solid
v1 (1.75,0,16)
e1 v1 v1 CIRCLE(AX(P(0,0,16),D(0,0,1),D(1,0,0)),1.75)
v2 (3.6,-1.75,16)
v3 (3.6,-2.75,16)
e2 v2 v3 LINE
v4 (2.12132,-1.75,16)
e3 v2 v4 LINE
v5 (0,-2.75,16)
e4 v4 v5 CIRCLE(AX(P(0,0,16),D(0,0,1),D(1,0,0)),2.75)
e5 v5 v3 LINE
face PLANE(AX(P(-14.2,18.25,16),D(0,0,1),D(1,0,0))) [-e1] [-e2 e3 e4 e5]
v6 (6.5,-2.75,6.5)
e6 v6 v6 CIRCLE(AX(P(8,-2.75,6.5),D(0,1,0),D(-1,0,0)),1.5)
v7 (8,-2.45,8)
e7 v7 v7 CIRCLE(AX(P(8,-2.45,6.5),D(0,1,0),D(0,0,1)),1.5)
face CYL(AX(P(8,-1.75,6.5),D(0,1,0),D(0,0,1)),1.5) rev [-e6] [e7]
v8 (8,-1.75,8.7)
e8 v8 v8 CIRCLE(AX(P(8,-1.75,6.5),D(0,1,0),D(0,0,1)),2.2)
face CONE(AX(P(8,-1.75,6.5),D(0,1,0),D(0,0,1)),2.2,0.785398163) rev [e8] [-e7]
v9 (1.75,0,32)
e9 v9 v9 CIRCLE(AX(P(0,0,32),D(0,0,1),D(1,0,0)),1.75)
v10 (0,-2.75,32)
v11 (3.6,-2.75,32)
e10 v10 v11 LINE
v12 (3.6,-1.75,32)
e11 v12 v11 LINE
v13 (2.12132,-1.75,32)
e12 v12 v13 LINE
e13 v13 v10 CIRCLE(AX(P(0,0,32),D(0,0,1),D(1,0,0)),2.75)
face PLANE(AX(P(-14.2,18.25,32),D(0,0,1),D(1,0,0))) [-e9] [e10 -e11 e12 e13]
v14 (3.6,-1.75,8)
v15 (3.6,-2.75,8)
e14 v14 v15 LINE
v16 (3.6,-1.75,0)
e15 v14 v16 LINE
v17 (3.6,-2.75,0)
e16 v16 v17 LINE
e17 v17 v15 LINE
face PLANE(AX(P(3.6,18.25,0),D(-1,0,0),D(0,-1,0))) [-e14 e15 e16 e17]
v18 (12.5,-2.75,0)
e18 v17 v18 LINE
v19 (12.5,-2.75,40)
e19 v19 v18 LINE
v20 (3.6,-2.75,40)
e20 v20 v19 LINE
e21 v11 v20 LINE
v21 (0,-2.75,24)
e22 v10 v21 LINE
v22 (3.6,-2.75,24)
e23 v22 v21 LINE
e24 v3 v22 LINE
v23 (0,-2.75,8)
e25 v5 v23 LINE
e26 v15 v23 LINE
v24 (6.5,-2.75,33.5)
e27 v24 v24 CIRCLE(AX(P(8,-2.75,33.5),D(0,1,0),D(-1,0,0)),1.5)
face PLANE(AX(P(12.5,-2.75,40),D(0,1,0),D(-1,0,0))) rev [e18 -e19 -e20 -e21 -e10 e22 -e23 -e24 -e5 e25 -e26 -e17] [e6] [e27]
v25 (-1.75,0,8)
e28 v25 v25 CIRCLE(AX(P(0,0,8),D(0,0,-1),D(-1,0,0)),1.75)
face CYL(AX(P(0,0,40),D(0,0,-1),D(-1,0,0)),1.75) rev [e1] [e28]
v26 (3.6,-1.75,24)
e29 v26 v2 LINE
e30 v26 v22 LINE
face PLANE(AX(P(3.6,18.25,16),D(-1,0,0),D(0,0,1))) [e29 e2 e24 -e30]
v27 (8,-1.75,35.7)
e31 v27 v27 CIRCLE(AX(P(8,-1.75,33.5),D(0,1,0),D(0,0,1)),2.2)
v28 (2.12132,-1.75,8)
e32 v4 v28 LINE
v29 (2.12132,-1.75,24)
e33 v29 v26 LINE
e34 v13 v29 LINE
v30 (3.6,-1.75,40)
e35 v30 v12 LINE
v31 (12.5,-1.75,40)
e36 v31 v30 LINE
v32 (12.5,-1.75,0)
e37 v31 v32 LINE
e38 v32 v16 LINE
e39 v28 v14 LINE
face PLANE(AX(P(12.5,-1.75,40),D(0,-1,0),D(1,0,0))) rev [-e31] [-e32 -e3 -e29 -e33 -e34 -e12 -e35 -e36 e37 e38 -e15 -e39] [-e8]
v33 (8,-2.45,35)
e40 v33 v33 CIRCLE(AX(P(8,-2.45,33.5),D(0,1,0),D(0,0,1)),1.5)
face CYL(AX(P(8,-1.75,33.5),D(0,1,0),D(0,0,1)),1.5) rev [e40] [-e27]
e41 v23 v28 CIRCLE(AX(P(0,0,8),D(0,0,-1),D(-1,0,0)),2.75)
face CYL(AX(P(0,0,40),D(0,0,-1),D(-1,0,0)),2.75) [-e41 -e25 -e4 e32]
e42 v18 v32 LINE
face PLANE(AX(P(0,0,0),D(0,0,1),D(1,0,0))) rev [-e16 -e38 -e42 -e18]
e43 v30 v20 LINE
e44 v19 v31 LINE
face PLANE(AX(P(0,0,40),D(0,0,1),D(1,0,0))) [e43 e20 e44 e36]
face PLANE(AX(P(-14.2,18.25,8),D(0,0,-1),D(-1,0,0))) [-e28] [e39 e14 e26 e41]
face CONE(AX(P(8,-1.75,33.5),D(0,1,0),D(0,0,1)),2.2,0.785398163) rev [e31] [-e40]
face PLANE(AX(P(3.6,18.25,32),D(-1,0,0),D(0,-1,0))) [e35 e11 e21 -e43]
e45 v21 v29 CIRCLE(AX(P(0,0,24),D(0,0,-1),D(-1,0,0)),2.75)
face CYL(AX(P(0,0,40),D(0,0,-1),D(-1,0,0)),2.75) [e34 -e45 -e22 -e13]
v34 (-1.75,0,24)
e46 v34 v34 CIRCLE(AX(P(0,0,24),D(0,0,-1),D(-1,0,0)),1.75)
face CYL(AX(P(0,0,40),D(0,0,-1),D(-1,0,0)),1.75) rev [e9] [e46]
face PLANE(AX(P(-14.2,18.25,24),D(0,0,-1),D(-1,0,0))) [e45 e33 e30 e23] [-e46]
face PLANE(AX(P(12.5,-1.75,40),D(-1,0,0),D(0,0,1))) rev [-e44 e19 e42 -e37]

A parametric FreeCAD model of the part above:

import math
import FreeCAD as App
import Part
import Sketcher

doc = App.newDocument("Part")
body = doc.addObject("PartDesign::Body", "Body")

sketch1 = doc.addObject("Sketcher::SketchObject", "Sketch")
body.addObject(sketch1)
sketch1.AttachmentSupport = (doc.XY_Plane, [""])
sketch1.MapMode = "FlatFace"
sketch1.addGeometry(Part.LineSegment(App.Vector(12.5, -1.8, 0), App.Vector(2.1, -1.8, 0)), False)
sketch1.addGeometry(Part.ArcOfCircle(Part.Circle(App.Vector(0, 0, 0), App.Vector(0, 0, 1), 2.8), math.radians(-40), math.radians(270)), False)
sketch1.addGeometry(Part.LineSegment(App.Vector(0, -2.8, 0), App.Vector(12.5, -2.8, 0)), False)
sketch1.addGeometry(Part.LineSegment(App.Vector(12.5, -2.8, 0), App.Vector(12.5, -1.8, 0)), False)
sketch1.addGeometry(Part.Circle(App.Vector(0, 0, 0), App.Vector(0, 0, 1), 1.8), False)
sketch1.addConstraint(Sketcher.Constraint("Coincident", 0, 2, 1, 1))
sketch1.addConstraint(Sketcher.Constraint("Tangent", 1, 2, 2, 1))
sketch1.addConstraint(Sketcher.Constraint("Coincident", 2, 2, 3, 1))
sketch1.addConstraint(Sketcher.Constraint("Coincident", 3, 2, 0, 1))
sketch1.addConstraint(Sketcher.Constraint("Horizontal", 0))
sketch1.addConstraint(Sketcher.Constraint("Horizontal", 2))
sketch1.addConstraint(Sketcher.Constraint("Vertical", 3))
sketch1.addConstraint(Sketcher.Constraint("Coincident", 1, 3, -1, 1))
sketch1.addConstraint(Sketcher.Constraint("Coincident", 4, 3, -1, 1))
sketch1.addConstraint(Sketcher.Constraint("Diameter", 4, 3.5))
sketch1.addConstraint(Sketcher.Constraint("DistanceY", 3, 1, 3, 2, 1.0))
sketch1.addConstraint(Sketcher.Constraint("Radius", 1, 2.75))
sketch1.addConstraint(Sketcher.Constraint("DistanceX", 2, 1, 2, 2, 12.5))
pad1 = doc.addObject("PartDesign::Pad", "Pad")
body.addObject(pad1)
pad1.Profile = sketch1
pad1.Length = 40

sketch2 = doc.addObject("Sketcher::SketchObject", "Sketch001")
body.addObject(sketch2)
sketch2.AttachmentSupport = (doc.XZ_Plane, [""])
sketch2.MapMode = "FlatFace"
sketch2.AttachmentOffset = App.Placement(App.Vector(0, 0, 1.75), App.Rotation())
sketch2.addGeometry(Part.LineSegment(App.Vector(-14, 16, 0), App.Vector(-14, 24, 0)), False)
sketch2.addGeometry(Part.LineSegment(App.Vector(-14, 24, 0), App.Vector(4, 24, 0)), False)
sketch2.addGeometry(Part.LineSegment(App.Vector(4, 24, 0), App.Vector(4, 16, 0)), False)
sketch2.addGeometry(Part.LineSegment(App.Vector(4, 16, 0), App.Vector(-14, 16, 0)), False)
sketch2.addGeometry(Part.LineSegment(App.Vector(-14, 32, 0), App.Vector(-14, 40, 0)), False)
sketch2.addGeometry(Part.LineSegment(App.Vector(-14, 40, 0), App.Vector(4, 40, 0)), False)
sketch2.addGeometry(Part.LineSegment(App.Vector(4, 40, 0), App.Vector(4, 32, 0)), False)
sketch2.addGeometry(Part.LineSegment(App.Vector(4, 32, 0), App.Vector(-14, 32, 0)), False)
sketch2.addGeometry(Part.LineSegment(App.Vector(-14, 0, 0), App.Vector(-14, 8, 0)), False)
sketch2.addGeometry(Part.LineSegment(App.Vector(-14, 8, 0), App.Vector(4, 8, 0)), False)
sketch2.addGeometry(Part.LineSegment(App.Vector(4, 8, 0), App.Vector(4, 0, 0)), False)
sketch2.addGeometry(Part.LineSegment(App.Vector(4, 0, 0), App.Vector(-14, 0, 0)), False)
sketch2.addConstraint(Sketcher.Constraint("Coincident", 0, 2, 1, 1))
sketch2.addConstraint(Sketcher.Constraint("Coincident", 1, 2, 2, 1))
sketch2.addConstraint(Sketcher.Constraint("Coincident", 2, 2, 3, 1))
sketch2.addConstraint(Sketcher.Constraint("Coincident", 3, 2, 0, 1))
sketch2.addConstraint(Sketcher.Constraint("Coincident", 4, 2, 5, 1))
sketch2.addConstraint(Sketcher.Constraint("Coincident", 5, 2, 6, 1))
sketch2.addConstraint(Sketcher.Constraint("Coincident", 6, 2, 7, 1))
sketch2.addConstraint(Sketcher.Constraint("Coincident", 7, 2, 4, 1))
sketch2.addConstraint(Sketcher.Constraint("Coincident", 8, 2, 9, 1))
sketch2.addConstraint(Sketcher.Constraint("Coincident", 9, 2, 10, 1))
sketch2.addConstraint(Sketcher.Constraint("Coincident", 10, 2, 11, 1))
sketch2.addConstraint(Sketcher.Constraint("Coincident", 11, 2, 8, 1))
sketch2.addConstraint(Sketcher.Constraint("Vertical", 0))
sketch2.addConstraint(Sketcher.Constraint("Horizontal", 1))
sketch2.addConstraint(Sketcher.Constraint("Vertical", 2))
sketch2.addConstraint(Sketcher.Constraint("Horizontal", 3))
sketch2.addConstraint(Sketcher.Constraint("Vertical", 4))
sketch2.addConstraint(Sketcher.Constraint("Horizontal", 5))
sketch2.addConstraint(Sketcher.Constraint("Vertical", 6))
sketch2.addConstraint(Sketcher.Constraint("Horizontal", 7))
sketch2.addConstraint(Sketcher.Constraint("Vertical", 8))
sketch2.addConstraint(Sketcher.Constraint("Horizontal", 9))
sketch2.addConstraint(Sketcher.Constraint("Vertical", 10))
sketch2.addConstraint(Sketcher.Constraint("Horizontal", 11))
sketch2.addConstraint(Sketcher.Constraint("PointOnObject", 10, 2, -1))
sketch2.addConstraint(Sketcher.Constraint("Vertical", 3, 2, 4, 2))
sketch2.addConstraint(Sketcher.Constraint("Vertical", 2, 2, 5, 2))
sketch2.addConstraint(Sketcher.Constraint("Vertical", 7, 2, 8, 2))
sketch2.addConstraint(Sketcher.Constraint("Vertical", 6, 2, 9, 2))
sketch2.addConstraint(Sketcher.Constraint("Equal", 2, 4))
sketch2.addConstraint(Sketcher.Constraint("Equal", 6, 8))
sketch2.addConstraint(Sketcher.Constraint("DistanceY", 0, 1, 0, 2, 8.0))
sketch2.addConstraint(Sketcher.Constraint("DistanceX", 1, 1, 1, 2, 17.8))
sketch2.addConstraint(Sketcher.Constraint("DistanceY", -1, 1, 0, 2, 24.0))
sketch2.addConstraint(Sketcher.Constraint("DistanceY", -1, 1, 4, 2, 40.0))
sketch2.addConstraint(Sketcher.Constraint("DistanceX", 0, 2, -1, 1, 14.2))
pocket1 = doc.addObject("PartDesign::Pocket", "Pocket")
body.addObject(pocket1)
pocket1.Profile = sketch2
pocket1.Type = "ThroughAll"
pocket1.Midplane = True

sketch3 = doc.addObject("Sketcher::SketchObject", "Sketch002")
body.addObject(sketch3)
sketch3.AttachmentSupport = (doc.XZ_Plane, [""])
sketch3.MapMode = "FlatFace"
sketch3.AttachmentOffset = App.Placement(App.Vector(0, 0, 1.75), App.Rotation())
sketch3.addGeometry(Part.Circle(App.Vector(8, 33.5, 0), App.Vector(0, 0, 1), 1.5), False)
sketch3.addGeometry(Part.Circle(App.Vector(8, 6.5, 0), App.Vector(0, 0, 1), 1.5), False)
sketch3.addConstraint(Sketcher.Constraint("Equal", 0, 1))
sketch3.addConstraint(Sketcher.Constraint("Vertical", 0, 3, 1, 3))
sketch3.addConstraint(Sketcher.Constraint("Diameter", 0, 3.0))
sketch3.addConstraint(Sketcher.Constraint("DistanceX", -1, 1, 0, 3, 8.0))
sketch3.addConstraint(Sketcher.Constraint("DistanceY", 1, 3, 0, 3, 27.0))
sketch3.addConstraint(Sketcher.Constraint("DistanceY", -1, 1, 0, 3, 33.5))
doc.recompute()
hole = doc.addObject("PartDesign::Hole", "Hole")
body.addObject(hole)
hole.Profile = sketch3
hole.ThreadType = "None"
hole.Diameter = 3
hole.DepthType = "Dimension"
hole.Depth = 10
hole.DrillPoint = "Angled"
hole.DrillPointAngle = 118
hole.HoleCutType = "Countersink"
hole.HoleCutDiameter = 4.4
hole.HoleCutCountersinkAngle = 90
hole.Reversed = True

doc.recompute()
